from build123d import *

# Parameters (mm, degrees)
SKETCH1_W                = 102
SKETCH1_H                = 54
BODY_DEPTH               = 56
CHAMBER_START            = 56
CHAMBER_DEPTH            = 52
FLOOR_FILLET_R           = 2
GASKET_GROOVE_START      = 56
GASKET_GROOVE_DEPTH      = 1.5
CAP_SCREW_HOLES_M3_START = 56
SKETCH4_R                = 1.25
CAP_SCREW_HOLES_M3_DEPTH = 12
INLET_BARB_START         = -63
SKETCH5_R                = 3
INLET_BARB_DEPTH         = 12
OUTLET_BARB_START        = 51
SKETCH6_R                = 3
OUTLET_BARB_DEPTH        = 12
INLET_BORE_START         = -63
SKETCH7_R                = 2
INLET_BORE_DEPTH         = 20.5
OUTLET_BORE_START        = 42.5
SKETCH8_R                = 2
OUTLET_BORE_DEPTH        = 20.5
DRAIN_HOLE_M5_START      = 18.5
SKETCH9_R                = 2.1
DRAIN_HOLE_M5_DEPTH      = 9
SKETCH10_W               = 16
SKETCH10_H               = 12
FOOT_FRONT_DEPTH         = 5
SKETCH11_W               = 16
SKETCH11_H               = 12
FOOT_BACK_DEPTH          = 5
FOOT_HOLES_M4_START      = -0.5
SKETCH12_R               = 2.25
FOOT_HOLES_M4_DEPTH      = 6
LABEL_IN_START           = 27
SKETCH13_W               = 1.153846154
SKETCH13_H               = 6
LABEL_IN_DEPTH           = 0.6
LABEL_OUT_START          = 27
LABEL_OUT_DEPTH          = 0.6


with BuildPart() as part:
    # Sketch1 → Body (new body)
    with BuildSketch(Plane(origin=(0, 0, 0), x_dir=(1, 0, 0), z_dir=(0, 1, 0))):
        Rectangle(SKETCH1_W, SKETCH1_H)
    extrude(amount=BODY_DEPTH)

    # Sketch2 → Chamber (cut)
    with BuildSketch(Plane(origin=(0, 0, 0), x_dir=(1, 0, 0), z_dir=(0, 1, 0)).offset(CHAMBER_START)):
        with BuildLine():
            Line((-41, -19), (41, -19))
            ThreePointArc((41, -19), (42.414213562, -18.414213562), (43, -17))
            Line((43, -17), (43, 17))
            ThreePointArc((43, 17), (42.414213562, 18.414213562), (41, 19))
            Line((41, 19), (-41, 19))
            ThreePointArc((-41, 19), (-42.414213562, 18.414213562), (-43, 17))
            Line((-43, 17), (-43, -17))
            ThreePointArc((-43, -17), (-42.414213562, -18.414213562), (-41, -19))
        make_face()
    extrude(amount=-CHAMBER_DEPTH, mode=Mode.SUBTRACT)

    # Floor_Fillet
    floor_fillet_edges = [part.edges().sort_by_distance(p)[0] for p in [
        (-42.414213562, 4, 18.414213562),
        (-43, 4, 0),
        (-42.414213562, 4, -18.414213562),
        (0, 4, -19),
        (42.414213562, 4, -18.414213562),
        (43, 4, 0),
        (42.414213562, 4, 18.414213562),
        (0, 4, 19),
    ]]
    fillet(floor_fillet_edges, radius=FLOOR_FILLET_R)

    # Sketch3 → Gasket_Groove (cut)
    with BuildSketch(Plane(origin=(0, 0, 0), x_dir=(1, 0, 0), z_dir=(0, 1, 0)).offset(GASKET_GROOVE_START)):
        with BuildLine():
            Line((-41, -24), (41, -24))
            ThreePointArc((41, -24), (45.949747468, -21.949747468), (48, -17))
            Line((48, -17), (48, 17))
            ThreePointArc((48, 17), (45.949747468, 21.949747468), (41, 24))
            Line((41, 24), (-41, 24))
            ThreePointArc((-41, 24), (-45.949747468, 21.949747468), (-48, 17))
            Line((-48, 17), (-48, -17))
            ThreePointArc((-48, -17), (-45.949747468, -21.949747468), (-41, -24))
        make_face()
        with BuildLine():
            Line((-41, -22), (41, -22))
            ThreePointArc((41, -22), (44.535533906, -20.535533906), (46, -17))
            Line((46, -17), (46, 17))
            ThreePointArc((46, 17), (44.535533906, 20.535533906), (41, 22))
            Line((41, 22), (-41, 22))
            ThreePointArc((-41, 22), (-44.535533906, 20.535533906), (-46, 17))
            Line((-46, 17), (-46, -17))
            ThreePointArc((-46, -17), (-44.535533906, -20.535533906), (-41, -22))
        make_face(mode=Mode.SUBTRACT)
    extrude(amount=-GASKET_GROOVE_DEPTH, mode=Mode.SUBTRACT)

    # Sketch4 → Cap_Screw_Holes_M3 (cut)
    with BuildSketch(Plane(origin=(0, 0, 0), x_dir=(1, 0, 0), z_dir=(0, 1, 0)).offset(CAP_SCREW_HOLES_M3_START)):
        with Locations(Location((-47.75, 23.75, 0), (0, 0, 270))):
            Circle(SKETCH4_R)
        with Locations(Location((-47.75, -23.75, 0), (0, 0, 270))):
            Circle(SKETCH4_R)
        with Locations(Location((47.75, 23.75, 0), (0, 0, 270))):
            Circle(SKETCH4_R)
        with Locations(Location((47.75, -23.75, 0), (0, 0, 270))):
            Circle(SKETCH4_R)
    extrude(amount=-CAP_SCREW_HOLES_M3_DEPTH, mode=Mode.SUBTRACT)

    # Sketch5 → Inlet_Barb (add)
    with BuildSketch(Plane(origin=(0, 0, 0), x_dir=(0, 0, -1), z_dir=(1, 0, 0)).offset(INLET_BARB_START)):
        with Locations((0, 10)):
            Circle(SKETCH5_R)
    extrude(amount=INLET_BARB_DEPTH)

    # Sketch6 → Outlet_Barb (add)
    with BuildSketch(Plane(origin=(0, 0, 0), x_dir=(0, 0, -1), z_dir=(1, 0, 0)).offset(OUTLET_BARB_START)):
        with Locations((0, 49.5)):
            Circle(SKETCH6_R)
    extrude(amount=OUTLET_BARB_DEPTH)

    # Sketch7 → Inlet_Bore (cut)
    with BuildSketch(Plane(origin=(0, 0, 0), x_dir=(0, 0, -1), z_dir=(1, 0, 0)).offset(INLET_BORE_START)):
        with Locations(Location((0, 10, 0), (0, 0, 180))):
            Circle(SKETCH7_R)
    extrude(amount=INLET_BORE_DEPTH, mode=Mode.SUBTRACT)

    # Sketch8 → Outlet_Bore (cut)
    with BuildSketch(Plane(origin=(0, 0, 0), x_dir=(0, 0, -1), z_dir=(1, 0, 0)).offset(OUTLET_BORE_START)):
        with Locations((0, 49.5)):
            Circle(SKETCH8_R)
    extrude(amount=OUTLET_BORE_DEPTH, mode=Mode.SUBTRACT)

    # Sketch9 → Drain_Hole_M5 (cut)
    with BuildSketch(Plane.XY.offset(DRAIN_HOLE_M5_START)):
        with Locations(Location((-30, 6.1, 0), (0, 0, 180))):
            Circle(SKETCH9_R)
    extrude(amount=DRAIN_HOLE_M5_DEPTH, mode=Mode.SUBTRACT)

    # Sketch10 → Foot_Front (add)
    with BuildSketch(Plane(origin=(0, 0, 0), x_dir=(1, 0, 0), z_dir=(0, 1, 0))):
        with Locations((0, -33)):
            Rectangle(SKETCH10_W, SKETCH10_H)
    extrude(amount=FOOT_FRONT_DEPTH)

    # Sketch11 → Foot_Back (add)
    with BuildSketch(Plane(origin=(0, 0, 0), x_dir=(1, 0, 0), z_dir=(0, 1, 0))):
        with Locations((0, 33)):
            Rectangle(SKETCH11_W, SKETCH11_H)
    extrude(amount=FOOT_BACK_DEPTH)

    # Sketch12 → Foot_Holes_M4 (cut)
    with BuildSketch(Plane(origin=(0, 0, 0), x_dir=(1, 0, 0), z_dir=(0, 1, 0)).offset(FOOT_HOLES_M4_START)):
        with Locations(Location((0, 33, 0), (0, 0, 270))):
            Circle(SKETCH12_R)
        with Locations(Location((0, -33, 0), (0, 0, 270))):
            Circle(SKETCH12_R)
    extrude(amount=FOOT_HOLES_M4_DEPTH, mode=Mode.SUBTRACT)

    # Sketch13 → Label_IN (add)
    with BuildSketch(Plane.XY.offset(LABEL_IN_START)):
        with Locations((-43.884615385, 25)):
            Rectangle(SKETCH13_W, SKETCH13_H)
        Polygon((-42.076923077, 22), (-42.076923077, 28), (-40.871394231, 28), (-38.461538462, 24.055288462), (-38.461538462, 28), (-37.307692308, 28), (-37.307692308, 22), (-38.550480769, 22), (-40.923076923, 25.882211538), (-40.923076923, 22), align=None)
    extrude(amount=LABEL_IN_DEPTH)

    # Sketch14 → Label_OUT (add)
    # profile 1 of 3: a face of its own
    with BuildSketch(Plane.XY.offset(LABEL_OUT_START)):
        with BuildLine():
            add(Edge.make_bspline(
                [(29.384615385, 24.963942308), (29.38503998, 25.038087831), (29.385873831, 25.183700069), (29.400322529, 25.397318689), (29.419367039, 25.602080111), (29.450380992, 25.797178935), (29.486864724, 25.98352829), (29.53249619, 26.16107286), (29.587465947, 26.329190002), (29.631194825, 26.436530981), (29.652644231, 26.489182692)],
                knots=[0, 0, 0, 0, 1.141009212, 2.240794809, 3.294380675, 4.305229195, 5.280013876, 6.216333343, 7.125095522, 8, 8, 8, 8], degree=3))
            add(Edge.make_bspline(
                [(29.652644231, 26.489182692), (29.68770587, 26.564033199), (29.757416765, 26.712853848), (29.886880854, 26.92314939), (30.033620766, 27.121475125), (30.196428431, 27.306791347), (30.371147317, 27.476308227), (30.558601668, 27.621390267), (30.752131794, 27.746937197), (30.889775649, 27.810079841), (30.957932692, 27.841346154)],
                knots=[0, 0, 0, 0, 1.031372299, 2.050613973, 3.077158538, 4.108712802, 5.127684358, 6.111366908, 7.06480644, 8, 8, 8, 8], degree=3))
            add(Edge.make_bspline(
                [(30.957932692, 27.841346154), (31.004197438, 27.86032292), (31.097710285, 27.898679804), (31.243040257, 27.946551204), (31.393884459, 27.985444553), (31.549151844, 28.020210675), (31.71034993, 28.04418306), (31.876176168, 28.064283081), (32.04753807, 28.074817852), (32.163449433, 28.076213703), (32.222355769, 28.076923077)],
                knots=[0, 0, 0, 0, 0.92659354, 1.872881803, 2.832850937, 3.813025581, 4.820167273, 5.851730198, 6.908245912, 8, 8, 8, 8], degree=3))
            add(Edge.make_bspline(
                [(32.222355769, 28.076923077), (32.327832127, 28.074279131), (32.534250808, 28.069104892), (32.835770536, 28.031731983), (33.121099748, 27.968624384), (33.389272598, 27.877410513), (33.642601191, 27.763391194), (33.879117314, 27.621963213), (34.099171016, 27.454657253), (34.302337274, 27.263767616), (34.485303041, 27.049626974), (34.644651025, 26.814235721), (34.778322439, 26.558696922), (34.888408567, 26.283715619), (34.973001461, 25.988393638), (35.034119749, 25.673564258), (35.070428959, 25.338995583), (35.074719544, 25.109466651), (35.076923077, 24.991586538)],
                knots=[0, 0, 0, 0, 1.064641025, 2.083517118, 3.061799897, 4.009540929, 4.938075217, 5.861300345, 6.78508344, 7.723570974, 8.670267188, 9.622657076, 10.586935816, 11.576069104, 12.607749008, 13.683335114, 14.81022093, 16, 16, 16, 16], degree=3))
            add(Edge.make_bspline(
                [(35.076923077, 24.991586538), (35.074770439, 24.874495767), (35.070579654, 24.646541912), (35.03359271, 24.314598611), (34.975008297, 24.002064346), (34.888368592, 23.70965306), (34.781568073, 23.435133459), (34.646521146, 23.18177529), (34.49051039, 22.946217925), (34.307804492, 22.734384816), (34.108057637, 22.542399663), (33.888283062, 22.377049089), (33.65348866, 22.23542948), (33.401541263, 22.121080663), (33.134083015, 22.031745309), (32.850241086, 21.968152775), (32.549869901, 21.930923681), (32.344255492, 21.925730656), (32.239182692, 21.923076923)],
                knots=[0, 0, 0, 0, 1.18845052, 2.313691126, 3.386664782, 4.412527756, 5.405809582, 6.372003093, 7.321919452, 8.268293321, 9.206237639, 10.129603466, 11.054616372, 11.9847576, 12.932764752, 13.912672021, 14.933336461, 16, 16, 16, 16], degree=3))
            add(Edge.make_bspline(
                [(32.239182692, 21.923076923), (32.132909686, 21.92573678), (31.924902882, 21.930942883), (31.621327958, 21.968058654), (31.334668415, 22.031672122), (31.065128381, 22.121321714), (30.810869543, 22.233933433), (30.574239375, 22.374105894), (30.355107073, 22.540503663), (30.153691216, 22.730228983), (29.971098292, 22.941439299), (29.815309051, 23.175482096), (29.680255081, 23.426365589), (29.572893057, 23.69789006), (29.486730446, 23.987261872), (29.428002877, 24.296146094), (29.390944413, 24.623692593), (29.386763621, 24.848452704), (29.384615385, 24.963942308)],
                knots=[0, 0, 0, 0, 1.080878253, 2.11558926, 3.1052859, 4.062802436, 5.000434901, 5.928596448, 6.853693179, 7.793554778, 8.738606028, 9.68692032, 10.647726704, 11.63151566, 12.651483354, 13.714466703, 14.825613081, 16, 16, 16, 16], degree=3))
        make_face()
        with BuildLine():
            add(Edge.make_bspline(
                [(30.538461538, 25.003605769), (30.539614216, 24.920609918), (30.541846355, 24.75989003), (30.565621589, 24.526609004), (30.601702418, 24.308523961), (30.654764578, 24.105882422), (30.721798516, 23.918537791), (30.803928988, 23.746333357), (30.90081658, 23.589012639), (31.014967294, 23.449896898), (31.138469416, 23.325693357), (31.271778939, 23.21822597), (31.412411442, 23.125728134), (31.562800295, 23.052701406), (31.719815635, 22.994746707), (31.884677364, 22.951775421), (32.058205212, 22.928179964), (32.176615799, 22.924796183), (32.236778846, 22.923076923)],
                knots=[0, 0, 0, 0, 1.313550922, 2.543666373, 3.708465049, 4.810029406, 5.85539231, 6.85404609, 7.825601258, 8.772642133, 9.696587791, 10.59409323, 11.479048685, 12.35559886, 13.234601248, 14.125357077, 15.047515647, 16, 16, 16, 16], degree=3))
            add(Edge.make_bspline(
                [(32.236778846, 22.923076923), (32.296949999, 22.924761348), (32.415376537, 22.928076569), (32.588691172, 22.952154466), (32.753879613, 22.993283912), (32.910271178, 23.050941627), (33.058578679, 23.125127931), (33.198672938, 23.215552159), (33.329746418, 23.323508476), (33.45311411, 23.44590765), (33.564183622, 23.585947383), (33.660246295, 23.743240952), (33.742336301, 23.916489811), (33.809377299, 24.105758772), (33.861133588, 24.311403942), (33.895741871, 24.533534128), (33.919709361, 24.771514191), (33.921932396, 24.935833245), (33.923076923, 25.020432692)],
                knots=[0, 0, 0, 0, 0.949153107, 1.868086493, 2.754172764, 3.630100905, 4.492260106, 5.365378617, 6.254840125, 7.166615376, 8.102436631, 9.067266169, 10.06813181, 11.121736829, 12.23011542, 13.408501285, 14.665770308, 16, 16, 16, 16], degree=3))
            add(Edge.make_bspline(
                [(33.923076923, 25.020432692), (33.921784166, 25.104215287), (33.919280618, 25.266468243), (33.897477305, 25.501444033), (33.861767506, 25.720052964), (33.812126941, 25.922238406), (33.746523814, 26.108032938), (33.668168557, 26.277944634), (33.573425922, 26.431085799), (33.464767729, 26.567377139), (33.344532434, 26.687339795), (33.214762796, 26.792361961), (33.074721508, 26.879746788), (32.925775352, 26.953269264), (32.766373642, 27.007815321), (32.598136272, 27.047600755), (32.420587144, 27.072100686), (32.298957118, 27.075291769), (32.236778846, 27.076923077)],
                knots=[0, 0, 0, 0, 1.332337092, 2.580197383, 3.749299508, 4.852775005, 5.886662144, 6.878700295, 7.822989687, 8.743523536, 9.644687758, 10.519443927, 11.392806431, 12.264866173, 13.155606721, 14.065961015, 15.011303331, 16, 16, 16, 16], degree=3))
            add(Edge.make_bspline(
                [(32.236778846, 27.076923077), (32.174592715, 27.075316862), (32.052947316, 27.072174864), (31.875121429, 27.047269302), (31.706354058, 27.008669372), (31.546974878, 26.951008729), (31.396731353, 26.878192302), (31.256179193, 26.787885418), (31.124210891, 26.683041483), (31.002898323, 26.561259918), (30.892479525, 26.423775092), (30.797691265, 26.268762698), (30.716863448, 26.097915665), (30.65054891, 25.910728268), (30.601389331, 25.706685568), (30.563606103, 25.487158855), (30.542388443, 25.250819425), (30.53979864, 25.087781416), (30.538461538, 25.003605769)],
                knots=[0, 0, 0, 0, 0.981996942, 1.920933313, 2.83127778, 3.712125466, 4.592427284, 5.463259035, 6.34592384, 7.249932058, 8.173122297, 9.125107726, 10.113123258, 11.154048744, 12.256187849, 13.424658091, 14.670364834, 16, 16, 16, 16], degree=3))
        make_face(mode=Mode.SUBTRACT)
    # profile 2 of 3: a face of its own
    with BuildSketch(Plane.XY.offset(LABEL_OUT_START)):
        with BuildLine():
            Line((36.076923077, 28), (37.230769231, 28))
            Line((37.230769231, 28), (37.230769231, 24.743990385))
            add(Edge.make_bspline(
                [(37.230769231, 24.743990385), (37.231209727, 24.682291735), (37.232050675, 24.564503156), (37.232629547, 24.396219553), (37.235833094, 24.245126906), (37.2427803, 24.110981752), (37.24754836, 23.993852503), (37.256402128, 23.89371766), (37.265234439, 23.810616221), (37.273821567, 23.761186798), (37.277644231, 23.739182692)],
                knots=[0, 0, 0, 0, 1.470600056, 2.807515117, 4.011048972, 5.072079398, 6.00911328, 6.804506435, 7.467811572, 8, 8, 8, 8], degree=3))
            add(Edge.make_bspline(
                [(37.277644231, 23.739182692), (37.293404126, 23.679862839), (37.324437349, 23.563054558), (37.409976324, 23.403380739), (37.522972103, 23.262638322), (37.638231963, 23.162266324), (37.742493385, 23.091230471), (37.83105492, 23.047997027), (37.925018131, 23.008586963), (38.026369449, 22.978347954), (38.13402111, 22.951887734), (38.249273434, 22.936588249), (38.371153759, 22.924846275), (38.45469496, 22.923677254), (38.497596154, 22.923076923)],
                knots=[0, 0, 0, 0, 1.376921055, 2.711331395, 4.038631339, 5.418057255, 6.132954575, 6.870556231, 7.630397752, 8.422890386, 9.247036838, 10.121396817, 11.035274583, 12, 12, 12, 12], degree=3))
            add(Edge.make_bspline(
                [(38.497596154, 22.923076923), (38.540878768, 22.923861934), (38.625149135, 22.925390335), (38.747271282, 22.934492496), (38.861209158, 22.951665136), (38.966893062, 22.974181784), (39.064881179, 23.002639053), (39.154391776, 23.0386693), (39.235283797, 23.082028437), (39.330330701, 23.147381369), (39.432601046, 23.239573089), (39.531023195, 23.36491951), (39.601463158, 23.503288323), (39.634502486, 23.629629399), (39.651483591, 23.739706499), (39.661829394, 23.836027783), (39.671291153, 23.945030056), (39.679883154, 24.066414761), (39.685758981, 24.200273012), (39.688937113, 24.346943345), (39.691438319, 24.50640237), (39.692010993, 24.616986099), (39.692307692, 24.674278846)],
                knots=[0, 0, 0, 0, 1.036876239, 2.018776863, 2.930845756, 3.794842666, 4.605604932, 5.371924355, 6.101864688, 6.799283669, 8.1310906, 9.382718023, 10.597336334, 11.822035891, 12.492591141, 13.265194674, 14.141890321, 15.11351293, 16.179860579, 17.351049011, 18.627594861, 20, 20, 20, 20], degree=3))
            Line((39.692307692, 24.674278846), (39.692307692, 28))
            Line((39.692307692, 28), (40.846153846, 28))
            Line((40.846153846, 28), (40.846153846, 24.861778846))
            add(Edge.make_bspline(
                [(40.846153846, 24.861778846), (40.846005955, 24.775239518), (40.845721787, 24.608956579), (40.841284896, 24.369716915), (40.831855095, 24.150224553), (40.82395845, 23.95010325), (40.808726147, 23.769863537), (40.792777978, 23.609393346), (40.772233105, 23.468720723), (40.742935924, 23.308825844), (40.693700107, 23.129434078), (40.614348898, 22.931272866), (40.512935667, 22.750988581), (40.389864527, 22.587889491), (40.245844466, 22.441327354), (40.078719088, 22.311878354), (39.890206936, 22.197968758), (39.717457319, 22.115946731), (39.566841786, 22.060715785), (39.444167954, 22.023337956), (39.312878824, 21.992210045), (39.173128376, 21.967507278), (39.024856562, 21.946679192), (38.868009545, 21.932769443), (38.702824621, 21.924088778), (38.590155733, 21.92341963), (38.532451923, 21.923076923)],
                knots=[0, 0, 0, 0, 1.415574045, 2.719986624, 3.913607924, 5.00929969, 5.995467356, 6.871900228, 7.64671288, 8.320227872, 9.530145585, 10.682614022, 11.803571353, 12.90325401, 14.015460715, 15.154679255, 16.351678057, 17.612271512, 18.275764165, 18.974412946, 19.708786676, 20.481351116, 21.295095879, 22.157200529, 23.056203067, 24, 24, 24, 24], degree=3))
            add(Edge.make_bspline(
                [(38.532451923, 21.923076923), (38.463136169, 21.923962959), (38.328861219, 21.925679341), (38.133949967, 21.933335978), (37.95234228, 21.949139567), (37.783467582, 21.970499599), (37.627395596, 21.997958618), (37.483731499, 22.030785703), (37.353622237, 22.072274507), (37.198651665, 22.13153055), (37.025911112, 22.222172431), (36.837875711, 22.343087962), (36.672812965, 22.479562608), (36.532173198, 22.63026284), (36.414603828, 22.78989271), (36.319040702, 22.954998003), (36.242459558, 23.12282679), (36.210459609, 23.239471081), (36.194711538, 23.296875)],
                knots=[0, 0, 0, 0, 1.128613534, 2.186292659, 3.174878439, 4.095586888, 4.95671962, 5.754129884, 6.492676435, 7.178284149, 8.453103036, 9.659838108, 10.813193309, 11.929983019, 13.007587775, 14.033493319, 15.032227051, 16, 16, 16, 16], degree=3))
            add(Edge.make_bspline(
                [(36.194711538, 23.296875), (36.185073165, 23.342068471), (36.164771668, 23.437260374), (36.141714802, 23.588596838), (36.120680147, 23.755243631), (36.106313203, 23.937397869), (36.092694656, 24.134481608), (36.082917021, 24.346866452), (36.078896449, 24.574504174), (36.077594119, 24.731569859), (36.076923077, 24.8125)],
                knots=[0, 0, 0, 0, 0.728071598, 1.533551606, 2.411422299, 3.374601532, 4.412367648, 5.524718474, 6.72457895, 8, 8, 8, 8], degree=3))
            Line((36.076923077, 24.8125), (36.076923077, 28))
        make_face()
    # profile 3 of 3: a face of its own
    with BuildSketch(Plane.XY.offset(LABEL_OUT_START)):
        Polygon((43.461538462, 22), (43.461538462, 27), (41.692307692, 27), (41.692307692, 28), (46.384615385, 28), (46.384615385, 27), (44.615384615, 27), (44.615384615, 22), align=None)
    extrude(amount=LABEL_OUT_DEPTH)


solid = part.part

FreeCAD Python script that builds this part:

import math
import FreeCAD as App
import Part
import Sketcher


def edges_at(feature, points):
    """Names of the edges that pass closest to the given points."""
    edges = feature.Shape.Edges
    near = lambda p: min(range(len(edges)), key=lambda i: edges[i].distToShape(Part.Vertex(*p))[0])
    return sorted({f"Edge{near(p) + 1}" for p in points})


def add_polygon(sketch, points):
    """Adds a closed chain of lines whose ends are joined by coincident constraints."""
    first, n = sketch.GeometryCount, len(points)
    for a, b in zip(points, points[1:] + points[:1]):
        sketch.addGeometry(Part.LineSegment(App.Vector(*a, 0), App.Vector(*b, 0)), False)
    for i in range(n):
        sketch.addConstraint(Sketcher.Constraint("Coincident", first + i, 2, first + (i + 1) % n, 1))

doc = App.newDocument("Part")
body = doc.addObject("PartDesign::Body", "Body")

sketch1 = body.newObject("Sketcher::SketchObject", "Sketch")
sketch1.AttachmentSupport = (doc.getObject("XZ_Plane"), [""])
sketch1.MapMode = "FlatFace"
add_polygon(sketch1, [(-51, -27), (-51, 27), (51, 27), (51, -27)])
sketch1.addConstraint([
    Sketcher.Constraint("Vertical", 0),
    Sketcher.Constraint("Horizontal", 1),
    Sketcher.Constraint("Vertical", 2),
    Sketcher.Constraint("Horizontal", 3),
    Sketcher.Constraint("Symmetric", 0, 2, 2, 2, -1, 1),
    Sketcher.Constraint("DistanceX", 1, 1, 1, 2, 102.0),
    Sketcher.Constraint("DistanceY", 0, 1, 0, 2, 54.0),
])
pad1 = body.newObject("PartDesign::Pad", "Pad")
pad1.Profile = sketch1
pad1.Length = 56
pad1.Reversed = True

sketch2 = body.newObject("Sketcher::SketchObject", "Sketch001")
sketch2.AttachmentSupport = (doc.getObject("XZ_Plane"), [""])
sketch2.MapMode = "FlatFace"
sketch2.AttachmentOffset = App.Placement(App.Vector(0, 0, -56), App.Rotation())
sketch2.addGeometry([
    Part.LineSegment(App.Vector(-41, 19, 0), App.Vector(41, 19, 0)),
    Part.ArcOfCircle(Part.Circle(App.Vector(41, 17, 0), App.Vector(0, 0, 1), 2), math.radians(0), math.radians(90)),
    Part.LineSegment(App.Vector(43, 17, 0), App.Vector(43, -17, 0)),
    Part.ArcOfCircle(Part.Circle(App.Vector(41, -17, 0), App.Vector(0, 0, 1), 2), math.radians(-90), math.radians(0)),
    Part.LineSegment(App.Vector(41, -19, 0), App.Vector(-41, -19, 0)),
    Part.ArcOfCircle(Part.Circle(App.Vector(-41, -17, 0), App.Vector(0, 0, 1), 2), math.radians(-180), math.radians(-90)),
    Part.LineSegment(App.Vector(-43, -17, 0), App.Vector(-43, 17, 0)),
    Part.ArcOfCircle(Part.Circle(App.Vector(-41, 17, 0), App.Vector(0, 0, 1), 2), math.radians(90), math.radians(180)),
], False)
sketch2.addConstraint([
    Sketcher.Constraint("Tangent", 0, 2, 1, 2),
    Sketcher.Constraint("Tangent", 1, 1, 2, 1),
    Sketcher.Constraint("Tangent", 2, 2, 3, 2),
    Sketcher.Constraint("Tangent", 3, 1, 4, 1),
    Sketcher.Constraint("Tangent", 4, 2, 5, 2),
    Sketcher.Constraint("Tangent", 5, 1, 6, 1),
    Sketcher.Constraint("Tangent", 6, 2, 7, 2),
    Sketcher.Constraint("Tangent", 7, 1, 0, 1),
    Sketcher.Constraint("Horizontal", 0),
    Sketcher.Constraint("Vertical", 2),
    Sketcher.Constraint("Horizontal", 4),
    Sketcher.Constraint("Vertical", 6),
    Sketcher.Constraint("Equal", 1, 3),
    Sketcher.Constraint("Equal", 3, 5),
    Sketcher.Constraint("Equal", 5, 7),
    Sketcher.Constraint("Symmetric", 1, 3, 5, 3, -1, 1),
    Sketcher.Constraint("Radius", 1, 2.0),
    Sketcher.Constraint("DistanceX", 0, 1, 0, 2, 82.0),
    Sketcher.Constraint("DistanceY", 2, 2, 2, 1, 34.0),
])
pocket1 = body.newObject("PartDesign::Pocket", "Pocket")
pocket1.Profile = sketch2
pocket1.Length = 52
pocket1.Reversed = True
doc.recompute()

fillet = body.newObject("PartDesign::Fillet", "Fillet")
fillet.Base = (pocket1, edges_at(pocket1, [
    (-42.414, 4, 18.414),
    (-43, 4, 0),
    (-42.414, 4, -18.414),
    (0, 4, -19),
    (42.414, 4, -18.414),
    (43, 4, 0),
    (42.414, 4, 18.414),
    (0, 4, 19),
]))
fillet.Radius = 2

sketch3 = body.newObject("Sketcher::SketchObject", "Sketch002")
sketch3.AttachmentSupport = (doc.getObject("XZ_Plane"), [""])
sketch3.MapMode = "FlatFace"
sketch3.AttachmentOffset = App.Placement(App.Vector(0, 0, -56), App.Rotation())
sketch3.addGeometry([
    Part.LineSegment(App.Vector(-41, 24, 0), App.Vector(41, 24, 0)),
    Part.ArcOfCircle(Part.Circle(App.Vector(41, 17, 0), App.Vector(0, 0, 1), 7), math.radians(0), math.radians(90)),
    Part.LineSegment(App.Vector(48, 17, 0), App.Vector(48, -17, 0)),
    Part.ArcOfCircle(Part.Circle(App.Vector(41, -17, 0), App.Vector(0, 0, 1), 7), math.radians(-90), math.radians(0)),
    Part.LineSegment(App.Vector(41, -24, 0), App.Vector(-41, -24, 0)),
    Part.ArcOfCircle(Part.Circle(App.Vector(-41, -17, 0), App.Vector(0, 0, 1), 7), math.radians(-180), math.radians(-90)),
    Part.LineSegment(App.Vector(-48, -17, 0), App.Vector(-48, 17, 0)),
    Part.ArcOfCircle(Part.Circle(App.Vector(-41, 17, 0), App.Vector(0, 0, 1), 7), math.radians(90), math.radians(180)),
    Part.LineSegment(App.Vector(41, 22, 0), App.Vector(-41, 22, 0)),
    Part.ArcOfCircle(Part.Circle(App.Vector(-41, 17, 0), App.Vector(0, 0, 1), 5), math.radians(90), math.radians(180)),
    Part.LineSegment(App.Vector(-46, 17, 0), App.Vector(-46, -17, 0)),
    Part.ArcOfCircle(Part.Circle(App.Vector(-41, -17, 0), App.Vector(0, 0, 1), 5), math.radians(180), math.radians(270)),
    Part.LineSegment(App.Vector(-41, -22, 0), App.Vector(41, -22, 0)),
    Part.ArcOfCircle(Part.Circle(App.Vector(41, -17, 0), App.Vector(0, 0, 1), 5), math.radians(-90), math.radians(0)),
    Part.LineSegment(App.Vector(46, -17, 0), App.Vector(46, 17, 0)),
    Part.ArcOfCircle(Part.Circle(App.Vector(41, 17, 0), App.Vector(0, 0, 1), 5), math.radians(0), math.radians(90)),
], False)
sketch3.addConstraint([
    Sketcher.Constraint("Tangent", 0, 2, 1, 2),
    Sketcher.Constraint("Tangent", 1, 1, 2, 1),
    Sketcher.Constraint("Tangent", 2, 2, 3, 2),
    Sketcher.Constraint("Tangent", 3, 1, 4, 1),
    Sketcher.Constraint("Tangent", 4, 2, 5, 2),
    Sketcher.Constraint("Tangent", 5, 1, 6, 1),
    Sketcher.Constraint("Tangent", 6, 2, 7, 2),
    Sketcher.Constraint("Tangent", 7, 1, 0, 1),
    Sketcher.Constraint("Tangent", 8, 2, 9, 1),
    Sketcher.Constraint("Tangent", 9, 2, 10, 1),
    Sketcher.Constraint("Tangent", 10, 2, 11, 1),
    Sketcher.Constraint("Tangent", 11, 2, 12, 1),
    Sketcher.Constraint("Tangent", 12, 2, 13, 1),
    Sketcher.Constraint("Tangent", 13, 2, 14, 1),
    Sketcher.Constraint("Tangent", 14, 2, 15, 1),
    Sketcher.Constraint("Tangent", 15, 2, 8, 1),
    Sketcher.Constraint("Horizontal", 0),
    Sketcher.Constraint("Vertical", 2),
    Sketcher.Constraint("Horizontal", 4),
    Sketcher.Constraint("Vertical", 6),
    Sketcher.Constraint("Horizontal", 8),
    Sketcher.Constraint("Vertical", 10),
    Sketcher.Constraint("Horizontal", 12),
    Sketcher.Constraint("Vertical", 14),
    Sketcher.Constraint("Coincident", 9, 3, 7, 3),
    Sketcher.Constraint("Coincident", 11, 3, 5, 3),
    Sketcher.Constraint("Coincident", 13, 3, 3, 3),
    Sketcher.Constraint("Equal", 1, 3),
    Sketcher.Constraint("Equal", 3, 5),
    Sketcher.Constraint("Equal", 5, 7),
    Sketcher.Constraint("Equal", 13, 15),
    Sketcher.Constraint("Symmetric", 1, 3, 5, 3, -1, 1),
    Sketcher.Constraint("Radius", 1, 7.0),
    Sketcher.Constraint("Radius", 9, 5.0),
    Sketcher.Constraint("DistanceX", 0, 1, 0, 2, 82.0),
    Sketcher.Constraint("DistanceY", 2, 2, 2, 1, 34.0),
])
pocket2 = body.newObject("PartDesign::Pocket", "Pocket001")
pocket2.Profile = sketch3
pocket2.Length = 1.5
pocket2.Reversed = True

sketch4 = body.newObject("Sketcher::SketchObject", "Sketch003")
sketch4.AttachmentSupport = (doc.getObject("XZ_Plane"), [""])
sketch4.MapMode = "FlatFace"
sketch4.AttachmentOffset = App.Placement(App.Vector(0, 0, -56), App.Rotation())
sketch4.addGeometry([
    Part.Circle(App.Vector(-47.75, -23.75, 0), App.Vector(0, 0, 1), 1.25),
    Part.Circle(App.Vector(-47.75, 23.75, 0), App.Vector(0, 0, 1), 1.25),
    Part.Circle(App.Vector(47.75, -23.75, 0), App.Vector(0, 0, 1), 1.25),
    Part.Circle(App.Vector(47.75, 23.75, 0), App.Vector(0, 0, 1), 1.25),
], False)
sketch4.addConstraint([
    Sketcher.Constraint("Equal", 0, 1),
    Sketcher.Constraint("Equal", 1, 2),
    Sketcher.Constraint("Equal", 2, 3),
    Sketcher.Constraint("Symmetric", 1, 3, 2, 3, -1, 1),
    Sketcher.Constraint("Symmetric", 0, 3, 3, 3, -1, 1),
    Sketcher.Constraint("Symmetric", 0, 3, 2, 3, -2),
    Sketcher.Constraint("Diameter", 0, 2.5),
    Sketcher.Constraint("DistanceY", 0, 3, 1, 3, 47.5),
    Sketcher.Constraint("DistanceX", 0, 3, 2, 3, 95.5),
])
pocket3 = body.newObject("PartDesign::Pocket", "Pocket002")
pocket3.Profile = sketch4
pocket3.Length = 12
pocket3.Reversed = True

sketch5 = body.newObject("Sketcher::SketchObject", "Sketch004")
sketch5.AttachmentSupport = (doc.getObject("YZ_Plane"), [""])
sketch5.MapMode = "FlatFace"
sketch5.AttachmentOffset = App.Placement(App.Vector(0, 0, -63), App.Rotation())
sketch5.addGeometry(Part.Circle(App.Vector(10, 0, 0), App.Vector(0, 0, 1), 3), False)
sketch5.addConstraint([
    Sketcher.Constraint("PointOnObject", 0, 3, -1),
    Sketcher.Constraint("Diameter", 0, 6.0),
    Sketcher.Constraint("DistanceX", -1, 1, 0, 3, 10.0),
])
pad2 = body.newObject("PartDesign::Pad", "Pad001")
pad2.Profile = sketch5
pad2.Length = 12

sketch6 = body.newObject("Sketcher::SketchObject", "Sketch005")
sketch6.AttachmentSupport = (doc.getObject("YZ_Plane"), [""])
sketch6.MapMode = "FlatFace"
sketch6.AttachmentOffset = App.Placement(App.Vector(0, 0, 51), App.Rotation())
sketch6.addGeometry(Part.Circle(App.Vector(49.5, 0, 0), App.Vector(0, 0, 1), 3), False)
sketch6.addConstraint([
    Sketcher.Constraint("PointOnObject", 0, 3, -1),
    Sketcher.Constraint("Diameter", 0, 6.0),
    Sketcher.Constraint("DistanceX", -1, 1, 0, 3, 49.5),
])
pad3 = body.newObject("PartDesign::Pad", "Pad002")
pad3.Profile = sketch6
pad3.Length = 12

sketch7 = body.newObject("Sketcher::SketchObject", "Sketch006")
sketch7.AttachmentSupport = (doc.getObject("YZ_Plane"), [""])
sketch7.MapMode = "FlatFace"
sketch7.AttachmentOffset = App.Placement(App.Vector(0, 0, -63), App.Rotation())
sketch7.addGeometry(Part.Circle(App.Vector(10, 0, 0), App.Vector(0, 0, 1), 2), False)
sketch7.addConstraint([
    Sketcher.Constraint("PointOnObject", 0, 3, -1),
    Sketcher.Constraint("Diameter", 0, 4.0),
    Sketcher.Constraint("DistanceX", -1, 1, 0, 3, 10.0),
])
pocket4 = body.newObject("PartDesign::Pocket", "Pocket003")
pocket4.Profile = sketch7
pocket4.Length = 20.5
pocket4.Reversed = True

sketch8 = body.newObject("Sketcher::SketchObject", "Sketch007")
sketch8.AttachmentSupport = (doc.getObject("YZ_Plane"), [""])
sketch8.MapMode = "FlatFace"
sketch8.AttachmentOffset = App.Placement(App.Vector(0, 0, 42.5), App.Rotation())
sketch8.addGeometry(Part.Circle(App.Vector(49.5, 0, 0), App.Vector(0, 0, 1), 2), False)
sketch8.addConstraint([
    Sketcher.Constraint("PointOnObject", 0, 3, -1),
    Sketcher.Constraint("Diameter", 0, 4.0),
    Sketcher.Constraint("DistanceX", -1, 1, 0, 3, 49.5),
])
pocket5 = body.newObject("PartDesign::Pocket", "Pocket004")
pocket5.Profile = sketch8
pocket5.Length = 20.5
pocket5.Reversed = True

sketch9 = body.newObject("Sketcher::SketchObject", "Sketch008")
sketch9.AttachmentSupport = (doc.getObject("XY_Plane"), [""])
sketch9.MapMode = "FlatFace"
sketch9.AttachmentOffset = App.Placement(App.Vector(0, 0, 18.5), App.Rotation())
sketch9.addGeometry(Part.Circle(App.Vector(-30, 6.1, 0), App.Vector(0, 0, 1), 2.1), False)
sketch9.addConstraint([
    Sketcher.Constraint("Diameter", 0, 4.2),
    Sketcher.Constraint("DistanceX", 0, 3, -1, 1, 30.0),
    Sketcher.Constraint("DistanceY", -1, 1, 0, 3, 6.1),
])
pocket6 = body.newObject("PartDesign::Pocket", "Pocket005")
pocket6.Profile = sketch9
pocket6.Length = 9
pocket6.Reversed = True

sketch10 = body.newObject("Sketcher::SketchObject", "Sketch009")
sketch10.AttachmentSupport = (doc.getObject("XZ_Plane"), [""])
sketch10.MapMode = "FlatFace"
add_polygon(sketch10, [(-8, 27), (-8, 39), (8, 39), (8, 27)])
sketch10.addConstraint([
    Sketcher.Constraint("Vertical", 0),
    Sketcher.Constraint("Horizontal", 1),
    Sketcher.Constraint("Vertical", 2),
    Sketcher.Constraint("Horizontal", 3),
    Sketcher.Constraint("DistanceX", 1, 1, 1, 2, 16.0),
    Sketcher.Constraint("DistanceY", 0, 1, 0, 2, 12.0),
    Sketcher.Constraint("DistanceX", 0, 2, -1, 1, 8.0),
    Sketcher.Constraint("DistanceY", -1, 1, 0, 2, 39.0),
])
pad4 = body.newObject("PartDesign::Pad", "Pad003")
pad4.Profile = sketch10
pad4.Length = 5
pad4.Reversed = True

sketch11 = body.newObject("Sketcher::SketchObject", "Sketch010")
sketch11.AttachmentSupport = (doc.getObject("XZ_Plane"), [""])
sketch11.MapMode = "FlatFace"
add_polygon(sketch11, [(-8, -39), (-8, -27), (8, -27), (8, -39)])
sketch11.addConstraint([
    Sketcher.Constraint("Vertical", 0),
    Sketcher.Constraint("Horizontal", 1),
    Sketcher.Constraint("Vertical", 2),
    Sketcher.Constraint("Horizontal", 3),
    Sketcher.Constraint("DistanceX", 1, 1, 1, 2, 16.0),
    Sketcher.Constraint("DistanceY", 0, 1, 0, 2, 12.0),
    Sketcher.Constraint("DistanceX", 0, 2, -1, 1, 8.0),
    Sketcher.Constraint("DistanceY", 0, 2, -1, 1, 27.0),
])
pad5 = body.newObject("PartDesign::Pad", "Pad004")
pad5.Profile = sketch11
pad5.Length = 5
pad5.Reversed = True

sketch12 = body.newObject("Sketcher::SketchObject", "Sketch011")
sketch12.AttachmentSupport = (doc.getObject("XZ_Plane"), [""])
sketch12.MapMode = "FlatFace"
sketch12.AttachmentOffset = App.Placement(App.Vector(0, 0, 0.5), App.Rotation())
sketch12.addGeometry([
    Part.Circle(App.Vector(0, -33, 0), App.Vector(0, 0, 1), 2.25),
    Part.Circle(App.Vector(0, 33, 0), App.Vector(0, 0, 1), 2.25),
], False)
sketch12.addConstraint([
    Sketcher.Constraint("Equal", 0, 1),
    Sketcher.Constraint("Symmetric", 0, 3, 1, 3, -1, 1),
    Sketcher.Constraint("PointOnObject", 0, 3, -2),
    Sketcher.Constraint("Diameter", 0, 4.5),
    Sketcher.Constraint("DistanceY", 0, 3, -1, 1, 33.0),
])
pocket7 = body.newObject("PartDesign::Pocket", "Pocket006")
pocket7.Profile = sketch12
pocket7.Length = 6

sketch13 = body.newObject("Sketcher::SketchObject", "Sketch012")
sketch13.AttachmentSupport = (doc.getObject("XY_Plane"), [""])
sketch13.MapMode = "FlatFace"
sketch13.AttachmentOffset = App.Placement(App.Vector(0, 0, 27), App.Rotation())
add_polygon(sketch13, [(-44.461538, 28), (-44.461538, 22), (-43.307692, 22), (-43.307692, 28)])
add_polygon(sketch13, [(-42.076923, 28), (-42.076923, 22), (-40.923077, 22), (-40.923077, 25.882212), (-38.550481, 22), (-37.307692, 22), (-37.307692, 28), (-38.461538, 28), (-38.461538, 24.055288), (-40.871394, 28)])
sketch13.addConstraint([
    Sketcher.Constraint("Vertical", 0),
    Sketcher.Constraint("Horizontal", 1),
    Sketcher.Constraint("Vertical", 2),
    Sketcher.Constraint("Horizontal", 3),
    Sketcher.Constraint("Vertical", 4),
    Sketcher.Constraint("Horizontal", 5),
    Sketcher.Constraint("Vertical", 6),
    Sketcher.Constraint("Horizontal", 8),
    Sketcher.Constraint("Vertical", 9),
    Sketcher.Constraint("Horizontal", 10),
    Sketcher.Constraint("Vertical", 11),
    Sketcher.Constraint("Horizontal", 13),
    Sketcher.Constraint("Horizontal", 1, 2, 4, 2),
    Sketcher.Constraint("Horizontal", 5, 2, 7, 2),
    Sketcher.Constraint("Horizontal", 3, 2, 9, 2),
    Sketcher.Constraint("Horizontal", 10, 2, 12, 2),
    Sketcher.Constraint("Equal", 3, 5),
    Sketcher.Constraint("Equal", 5, 10),
    Sketcher.Constraint("DistanceY", 0, 2, 0, 1, 6.0),
    Sketcher.Constraint("DistanceY", -1, 1, 0, 2, 22.0),
    Sketcher.Constraint("DistanceX", 1, 2, 8, 2, 6.0),
    Sketcher.Constraint("DistanceX", 8, 1, 8, 2, 1.242788),
    Sketcher.Constraint("DistanceX", 13, 2, 13, 1, 1.205529),
    Sketcher.Constraint("DistanceY", 6, 1, 6, 2, 3.882212),
    Sketcher.Constraint("DistanceY", 11, 2, 11, 1, 3.944712),
    Sketcher.Constraint("DistanceX", 2, 2, 12, 2, 2.436298),
    Sketcher.Constraint("Distance", 7, 4.549811),
    Sketcher.Constraint("DistanceX", 0, 2, -1, 1, 44.461538),
])
pad6 = body.newObject("PartDesign::Pad", "Pad005")
pad6.Profile = sketch13
pad6.Length = 0.6

sketch14 = body.newObject("Sketcher::SketchObject", "Sketch013")
sketch14.AttachmentSupport = (doc.getObject("XY_Plane"), [""])
sketch14.MapMode = "FlatFace"
sketch14.AttachmentOffset = App.Placement(App.Vector(0, 0, 27), App.Rotation())
sketch14.addGeometry(Part.BSplineCurve([App.Vector(29.384615, 24.963942, 0), App.Vector(29.38504, 25.038088, 0), App.Vector(29.385874, 25.1837, 0), App.Vector(29.400323, 25.397319, 0), App.Vector(29.419367, 25.60208, 0), App.Vector(29.450381, 25.797179, 0), App.Vector(29.486865, 25.983528, 0), App.Vector(29.532496, 26.161073, 0), App.Vector(29.587466, 26.32919, 0), App.Vector(29.631195, 26.436531, 0), App.Vector(29.652644, 26.489183, 0)], [4, 1, 1, 1, 1, 1, 1, 1, 4], [0, 1.141009212, 2.240794809, 3.294380675, 4.305229195, 5.280013876, 6.216333343, 7.125095522, 8], False, 3, [1, 1, 1, 1, 1, 1, 1, 1, 1, 1, 1], False), False)
sketch14.addGeometry(Part.BSplineCurve([App.Vector(32.239183, 21.923077, 0), App.Vector(32.13291, 21.925737, 0), App.Vector(31.924903, 21.930943, 0), App.Vector(31.621328, 21.968059, 0), App.Vector(31.334668, 22.031672, 0), App.Vector(31.065128, 22.121322, 0), App.Vector(30.81087, 22.233933, 0), App.Vector(30.574239, 22.374106, 0), App.Vector(30.355107, 22.540504, 0), App.Vector(30.153691, 22.730229, 0), App.Vector(29.971098, 22.941439, 0), App.Vector(29.815309, 23.175482, 0), App.Vector(29.680255, 23.426366, 0), App.Vector(29.572893, 23.69789, 0), App.Vector(29.48673, 23.987262, 0), App.Vector(29.428003, 24.296146, 0), App.Vector(29.390944, 24.623693, 0), App.Vector(29.386764, 24.848453, 0), App.Vector(29.384615, 24.963942, 0)], [4, 1, 1, 1, 1, 1, 1, 1, 1, 1, 1, 1, 1, 1, 1, 1, 4], [0, 1.080878253, 2.11558926, 3.1052859, 4.062802436, 5.000434901, 5.928596448, 6.853693179, 7.793554778, 8.738606028, 9.68692032, 10.647726704, 11.63151566, 12.651483354, 13.714466703, 14.825613081, 16], False, 3, [1, 1, 1, 1, 1, 1, 1, 1, 1, 1, 1, 1, 1, 1, 1, 1, 1, 1, 1], False), False)
sketch14.addGeometry(Part.BSplineCurve([App.Vector(35.076923, 24.991587, 0), App.Vector(35.07477, 24.874496, 0), App.Vector(35.07058, 24.646542, 0), App.Vector(35.033593, 24.314599, 0), App.Vector(34.975008, 24.002064, 0), App.Vector(34.888369, 23.709653, 0), App.Vector(34.781568, 23.435133, 0), App.Vector(34.646521, 23.181775, 0), App.Vector(34.49051, 22.946218, 0), App.Vector(34.307804, 22.734385, 0), App.Vector(34.108058, 22.5424, 0), App.Vector(33.888283, 22.377049, 0), App.Vector(33.653489, 22.235429, 0), App.Vector(33.401541, 22.121081, 0), App.Vector(33.134083, 22.031745, 0), App.Vector(32.850241, 21.968153, 0), App.Vector(32.54987, 21.930924, 0), App.Vector(32.344255, 21.925731, 0), App.Vector(32.239183, 21.923077, 0)], [4, 1, 1, 1, 1, 1, 1, 1, 1, 1, 1, 1, 1, 1, 1, 1, 4], [0, 1.18845052, 2.313691126, 3.386664782, 4.412527756, 5.405809582, 6.372003093, 7.321919452, 8.268293321, 9.206237639, 10.129603466, 11.054616372, 11.9847576, 12.932764752, 13.912672021, 14.933336461, 16], False, 3, [1, 1, 1, 1, 1, 1, 1, 1, 1, 1, 1, 1, 1, 1, 1, 1, 1, 1, 1], False), False)
sketch14.addGeometry(Part.BSplineCurve([App.Vector(32.222356, 28.076923, 0), App.Vector(32.327832, 28.074279, 0), App.Vector(32.534251, 28.069105, 0), App.Vector(32.835771, 28.031732, 0), App.Vector(33.1211, 27.968624, 0), App.Vector(33.389273, 27.877411, 0), App.Vector(33.642601, 27.763391, 0), App.Vector(33.879117, 27.621963, 0), App.Vector(34.099171, 27.454657, 0), App.Vector(34.302337, 27.263768, 0), App.Vector(34.485303, 27.049627, 0), App.Vector(34.644651, 26.814236, 0), App.Vector(34.778322, 26.558697, 0), App.Vector(34.888409, 26.283716, 0), App.Vector(34.973001, 25.988394, 0), App.Vector(35.03412, 25.673564, 0), App.Vector(35.070429, 25.338996, 0), App.Vector(35.07472, 25.109467, 0), App.Vector(35.076923, 24.991587, 0)], [4, 1, 1, 1, 1, 1, 1, 1, 1, 1, 1, 1, 1, 1, 1, 1, 4], [0, 1.064641025, 2.083517118, 3.061799897, 4.009540929, 4.938075217, 5.861300345, 6.78508344, 7.723570974, 8.670267188, 9.622657076, 10.586935816, 11.576069104, 12.607749008, 13.683335114, 14.81022093, 16], False, 3, [1, 1, 1, 1, 1, 1, 1, 1, 1, 1, 1, 1, 1, 1, 1, 1, 1, 1, 1], False), False)
sketch14.addGeometry(Part.BSplineCurve([App.Vector(30.957933, 27.841346, 0), App.Vector(31.004197, 27.860323, 0), App.Vector(31.09771, 27.89868, 0), App.Vector(31.24304, 27.946551, 0), App.Vector(31.393884, 27.985445, 0), App.Vector(31.549152, 28.020211, 0), App.Vector(31.71035, 28.044183, 0), App.Vector(31.876176, 28.064283, 0), App.Vector(32.047538, 28.074818, 0), App.Vector(32.163449, 28.076214, 0), App.Vector(32.222356, 28.076923, 0)], [4, 1, 1, 1, 1, 1, 1, 1, 4], [0, 0.92659354, 1.872881803, 2.832850937, 3.813025581, 4.820167273, 5.851730198, 6.908245912, 8], False, 3, [1, 1, 1, 1, 1, 1, 1, 1, 1, 1, 1], False), False)
sketch14.addGeometry(Part.BSplineCurve([App.Vector(29.652644, 26.489183, 0), App.Vector(29.687706, 26.564033, 0), App.Vector(29.757417, 26.712854, 0), App.Vector(29.886881, 26.923149, 0), App.Vector(30.033621, 27.121475, 0), App.Vector(30.196428, 27.306791, 0), App.Vector(30.371147, 27.476308, 0), App.Vector(30.558602, 27.62139, 0), App.Vector(30.752132, 27.746937, 0), App.Vector(30.889776, 27.81008, 0), App.Vector(30.957933, 27.841346, 0)], [4, 1, 1, 1, 1, 1, 1, 1, 4], [0, 1.031372299, 2.050613973, 3.077158538, 4.108712802, 5.127684358, 6.111366908, 7.06480644, 8], False, 3, [1, 1, 1, 1, 1, 1, 1, 1, 1, 1, 1], False), False)
sketch14.addGeometry(Part.BSplineCurve([App.Vector(32.236779, 27.076923, 0), App.Vector(32.174593, 27.075317, 0), App.Vector(32.052947, 27.072175, 0), App.Vector(31.875121, 27.047269, 0), App.Vector(31.706354, 27.008669, 0), App.Vector(31.546975, 26.951009, 0), App.Vector(31.396731, 26.878192, 0), App.Vector(31.256179, 26.787885, 0), App.Vector(31.124211, 26.683041, 0), App.Vector(31.002898, 26.56126, 0), App.Vector(30.89248, 26.423775, 0), App.Vector(30.797691, 26.268763, 0), App.Vector(30.716863, 26.097916, 0), App.Vector(30.650549, 25.910728, 0), App.Vector(30.601389, 25.706686, 0), App.Vector(30.563606, 25.487159, 0), App.Vector(30.542388, 25.250819, 0), App.Vector(30.539799, 25.087781, 0), App.Vector(30.538462, 25.003606, 0)], [4, 1, 1, 1, 1, 1, 1, 1, 1, 1, 1, 1, 1, 1, 1, 1, 4], [0, 0.981996942, 1.920933313, 2.83127778, 3.712125466, 4.592427284, 5.463259035, 6.34592384, 7.249932058, 8.173122297, 9.125107726, 10.113123258, 11.154048744, 12.256187849, 13.424658091, 14.670364834, 16], False, 3, [1, 1, 1, 1, 1, 1, 1, 1, 1, 1, 1, 1, 1, 1, 1, 1, 1, 1, 1], False), False)
sketch14.addGeometry(Part.BSplineCurve([App.Vector(33.923077, 25.020433, 0), App.Vector(33.921784, 25.104215, 0), App.Vector(33.919281, 25.266468, 0), App.Vector(33.897477, 25.501444, 0), App.Vector(33.861768, 25.720053, 0), App.Vector(33.812127, 25.922238, 0), App.Vector(33.746524, 26.108033, 0), App.Vector(33.668169, 26.277945, 0), App.Vector(33.573426, 26.431086, 0), App.Vector(33.464768, 26.567377, 0), App.Vector(33.344532, 26.68734, 0), App.Vector(33.214763, 26.792362, 0), App.Vector(33.074722, 26.879747, 0), App.Vector(32.925775, 26.953269, 0), App.Vector(32.766374, 27.007815, 0), App.Vector(32.598136, 27.047601, 0), App.Vector(32.420587, 27.072101, 0), App.Vector(32.298957, 27.075292, 0), App.Vector(32.236779, 27.076923, 0)], [4, 1, 1, 1, 1, 1, 1, 1, 1, 1, 1, 1, 1, 1, 1, 1, 4], [0, 1.332337092, 2.580197383, 3.749299508, 4.852775005, 5.886662144, 6.878700295, 7.822989687, 8.743523536, 9.644687758, 10.519443927, 11.392806431, 12.264866173, 13.155606721, 14.065961015, 15.011303331, 16], False, 3, [1, 1, 1, 1, 1, 1, 1, 1, 1, 1, 1, 1, 1, 1, 1, 1, 1, 1, 1], False), False)
sketch14.addGeometry(Part.BSplineCurve([App.Vector(32.236779, 22.923077, 0), App.Vector(32.29695, 22.924761, 0), App.Vector(32.415377, 22.928077, 0), App.Vector(32.588691, 22.952154, 0), App.Vector(32.75388, 22.993284, 0), App.Vector(32.910271, 23.050942, 0), App.Vector(33.058579, 23.125128, 0), App.Vector(33.198673, 23.215552, 0), App.Vector(33.329746, 23.323508, 0), App.Vector(33.453114, 23.445908, 0), App.Vector(33.564184, 23.585947, 0), App.Vector(33.660246, 23.743241, 0), App.Vector(33.742336, 23.91649, 0), App.Vector(33.809377, 24.105759, 0), App.Vector(33.861134, 24.311404, 0), App.Vector(33.895742, 24.533534, 0), App.Vector(33.919709, 24.771514, 0), App.Vector(33.921932, 24.935833, 0), App.Vector(33.923077, 25.020433, 0)], [4, 1, 1, 1, 1, 1, 1, 1, 1, 1, 1, 1, 1, 1, 1, 1, 4], [0, 0.949153107, 1.868086493, 2.754172764, 3.630100905, 4.492260106, 5.365378617, 6.254840125, 7.166615376, 8.102436631, 9.067266169, 10.06813181, 11.121736829, 12.23011542, 13.408501285, 14.665770308, 16], False, 3, [1, 1, 1, 1, 1, 1, 1, 1, 1, 1, 1, 1, 1, 1, 1, 1, 1, 1, 1], False), False)
sketch14.addGeometry(Part.BSplineCurve([App.Vector(30.538462, 25.003606, 0), App.Vector(30.539614, 24.92061, 0), App.Vector(30.541846, 24.75989, 0), App.Vector(30.565622, 24.526609, 0), App.Vector(30.601702, 24.308524, 0), App.Vector(30.654765, 24.105882, 0), App.Vector(30.721799, 23.918538, 0), App.Vector(30.803929, 23.746333, 0), App.Vector(30.900817, 23.589013, 0), App.Vector(31.014967, 23.449897, 0), App.Vector(31.138469, 23.325693, 0), App.Vector(31.271779, 23.218226, 0), App.Vector(31.412411, 23.125728, 0), App.Vector(31.5628, 23.052701, 0), App.Vector(31.719816, 22.994747, 0), App.Vector(31.884677, 22.951775, 0), App.Vector(32.058205, 22.92818, 0), App.Vector(32.176616, 22.924796, 0), App.Vector(32.236779, 22.923077, 0)], [4, 1, 1, 1, 1, 1, 1, 1, 1, 1, 1, 1, 1, 1, 1, 1, 4], [0, 1.313550922, 2.543666373, 3.708465049, 4.810029406, 5.85539231, 6.85404609, 7.825601258, 8.772642133, 9.696587791, 10.59409323, 11.479048685, 12.35559886, 13.234601248, 14.125357077, 15.047515647, 16], False, 3, [1, 1, 1, 1, 1, 1, 1, 1, 1, 1, 1, 1, 1, 1, 1, 1, 1, 1, 1], False), False)
sketch14.addGeometry(Part.LineSegment(App.Vector(37.230769, 28, 0), App.Vector(36.076923, 28, 0)), False)
sketch14.addGeometry(Part.LineSegment(App.Vector(36.076923, 28, 0), App.Vector(36.076923, 24.8125, 0)), False)
sketch14.addGeometry(Part.BSplineCurve([App.Vector(36.194712, 23.296875, 0), App.Vector(36.185073, 23.342068, 0), App.Vector(36.164772, 23.43726, 0), App.Vector(36.141715, 23.588597, 0), App.Vector(36.12068, 23.755244, 0), App.Vector(36.106313, 23.937398, 0), App.Vector(36.092695, 24.134482, 0), App.Vector(36.082917, 24.346866, 0), App.Vector(36.078896, 24.574504, 0), App.Vector(36.077594, 24.73157, 0), App.Vector(36.076923, 24.8125, 0)], [4, 1, 1, 1, 1, 1, 1, 1, 4], [0, 0.728071598, 1.533551606, 2.411422299, 3.374601532, 4.412367648, 5.524718474, 6.72457895, 8], False, 3, [1, 1, 1, 1, 1, 1, 1, 1, 1, 1, 1], False), False)
sketch14.addGeometry(Part.BSplineCurve([App.Vector(38.532452, 21.923077, 0), App.Vector(38.463136, 21.923963, 0), App.Vector(38.328861, 21.925679, 0), App.Vector(38.13395, 21.933336, 0), App.Vector(37.952342, 21.94914, 0), App.Vector(37.783468, 21.9705, 0), App.Vector(37.627396, 21.997959, 0), App.Vector(37.483731, 22.030786, 0), App.Vector(37.353622, 22.072275, 0), App.Vector(37.198652, 22.131531, 0), App.Vector(37.025911, 22.222172, 0), App.Vector(36.837876, 22.343088, 0), App.Vector(36.672813, 22.479563, 0), App.Vector(36.532173, 22.630263, 0), App.Vector(36.414604, 22.789893, 0), App.Vector(36.319041, 22.954998, 0), App.Vector(36.24246, 23.122827, 0), App.Vector(36.21046, 23.239471, 0), App.Vector(36.194712, 23.296875, 0)], [4, 1, 1, 1, 1, 1, 1, 1, 1, 1, 1, 1, 1, 1, 1, 1, 4], [0, 1.128613534, 2.186292659, 3.174878439, 4.095586888, 4.95671962, 5.754129884, 6.492676435, 7.178284149, 8.453103036, 9.659838108, 10.813193309, 11.929983019, 13.007587775, 14.033493319, 15.032227051, 16], False, 3, [1, 1, 1, 1, 1, 1, 1, 1, 1, 1, 1, 1, 1, 1, 1, 1, 1, 1, 1], False), False)
sketch14.addGeometry(Part.BSplineCurve([App.Vector(40.846154, 24.861779, 0), App.Vector(40.846006, 24.77524, 0), App.Vector(40.845722, 24.608957, 0), App.Vector(40.841285, 24.369717, 0), App.Vector(40.831855, 24.150225, 0), App.Vector(40.823958, 23.950103, 0), App.Vector(40.808726, 23.769864, 0), App.Vector(40.792778, 23.609393, 0), App.Vector(40.772233, 23.468721, 0), App.Vector(40.742936, 23.308826, 0), App.Vector(40.6937, 23.129434, 0), App.Vector(40.614349, 22.931273, 0), App.Vector(40.512936, 22.750989, 0), App.Vector(40.389865, 22.587889, 0), App.Vector(40.245844, 22.441327, 0), App.Vector(40.078719, 22.311878, 0), App.Vector(39.890207, 22.197969, 0), App.Vector(39.717457, 22.115947, 0), App.Vector(39.566842, 22.060716, 0), App.Vector(39.444168, 22.023338, 0), App.Vector(39.312879, 21.99221, 0), App.Vector(39.173128, 21.967507, 0), App.Vector(39.024857, 21.946679, 0), App.Vector(38.86801, 21.932769, 0), App.Vector(38.702825, 21.924089, 0), App.Vector(38.590156, 21.92342, 0), App.Vector(38.532452, 21.923077, 0)], [4, 1, 1, 1, 1, 1, 1, 1, 1, 1, 1, 1, 1, 1, 1, 1, 1, 1, 1, 1, 1, 1, 1, 1, 4], [0, 1.415574045, 2.719986624, 3.913607924, 5.00929969, 5.995467356, 6.871900228, 7.64671288, 8.320227872, 9.530145585, 10.682614022, 11.803571353, 12.90325401, 14.015460715, 15.154679255, 16.351678057, 17.612271512, 18.275764165, 18.974412946, 19.708786676, 20.481351116, 21.295095879, 22.157200529, 23.056203067, 24], False, 3, [1, 1, 1, 1, 1, 1, 1, 1, 1, 1, 1, 1, 1, 1, 1, 1, 1, 1, 1, 1, 1, 1, 1, 1, 1, 1, 1], False), False)
sketch14.addGeometry(Part.LineSegment(App.Vector(40.846154, 24.861779, 0), App.Vector(40.846154, 28, 0)), False)
sketch14.addGeometry(Part.LineSegment(App.Vector(40.846154, 28, 0), App.Vector(39.692308, 28, 0)), False)
sketch14.addGeometry(Part.LineSegment(App.Vector(39.692308, 28, 0), App.Vector(39.692308, 24.674279, 0)), False)
sketch14.addGeometry(Part.BSplineCurve([App.Vector(38.497596, 22.923077, 0), App.Vector(38.540879, 22.923862, 0), App.Vector(38.625149, 22.92539, 0), App.Vector(38.747271, 22.934492, 0), App.Vector(38.861209, 22.951665, 0), App.Vector(38.966893, 22.974182, 0), App.Vector(39.064881, 23.002639, 0), App.Vector(39.154392, 23.038669, 0), App.Vector(39.235284, 23.082028, 0), App.Vector(39.330331, 23.147381, 0), App.Vector(39.432601, 23.239573, 0), App.Vector(39.531023, 23.36492, 0), App.Vector(39.601463, 23.503288, 0), App.Vector(39.634502, 23.629629, 0), App.Vector(39.651484, 23.739706, 0), App.Vector(39.661829, 23.836028, 0), App.Vector(39.671291, 23.94503, 0), App.Vector(39.679883, 24.066415, 0), App.Vector(39.685759, 24.200273, 0), App.Vector(39.688937, 24.346943, 0), App.Vector(39.691438, 24.506402, 0), App.Vector(39.692011, 24.616986, 0), App.Vector(39.692308, 24.674279, 0)], [4, 1, 1, 1, 1, 1, 1, 1, 1, 1, 1, 1, 1, 1, 1, 1, 1, 1, 1, 1, 4], [0, 1.036876239, 2.018776863, 2.930845756, 3.794842666, 4.605604932, 5.371924355, 6.101864688, 6.799283669, 8.1310906, 9.382718023, 10.597336334, 11.822035891, 12.492591141, 13.265194674, 14.141890321, 15.11351293, 16.179860579, 17.351049011, 18.627594861, 20], False, 3, [1, 1, 1, 1, 1, 1, 1, 1, 1, 1, 1, 1, 1, 1, 1, 1, 1, 1, 1, 1, 1, 1, 1], False), False)
sketch14.addGeometry(Part.BSplineCurve([App.Vector(37.277644, 23.739183, 0), App.Vector(37.293404, 23.679863, 0), App.Vector(37.324437, 23.563055, 0), App.Vector(37.409976, 23.403381, 0), App.Vector(37.522972, 23.262638, 0), App.Vector(37.638232, 23.162266, 0), App.Vector(37.742493, 23.09123, 0), App.Vector(37.831055, 23.047997, 0), App.Vector(37.925018, 23.008587, 0), App.Vector(38.026369, 22.978348, 0), App.Vector(38.134021, 22.951888, 0), App.Vector(38.249273, 22.936588, 0), App.Vector(38.371154, 22.924846, 0), App.Vector(38.454695, 22.923677, 0), App.Vector(38.497596, 22.923077, 0)], [4, 1, 1, 1, 1, 1, 1, 1, 1, 1, 1, 1, 4], [0, 1.376921055, 2.711331395, 4.038631339, 5.418057255, 6.132954575, 6.870556231, 7.630397752, 8.422890386, 9.247036838, 10.121396817, 11.035274583, 12], False, 3, [1, 1, 1, 1, 1, 1, 1, 1, 1, 1, 1, 1, 1, 1, 1], False), False)
sketch14.addGeometry(Part.BSplineCurve([App.Vector(37.230769, 24.74399, 0), App.Vector(37.23121, 24.682292, 0), App.Vector(37.232051, 24.564503, 0), App.Vector(37.23263, 24.39622, 0), App.Vector(37.235833, 24.245127, 0), App.Vector(37.24278, 24.110982, 0), App.Vector(37.247548, 23.993853, 0), App.Vector(37.256402, 23.893718, 0), App.Vector(37.265234, 23.810616, 0), App.Vector(37.273822, 23.761187, 0), App.Vector(37.277644, 23.739183, 0)], [4, 1, 1, 1, 1, 1, 1, 1, 4], [0, 1.470600056, 2.807515117, 4.011048972, 5.072079398, 6.00911328, 6.804506435, 7.467811572, 8], False, 3, [1, 1, 1, 1, 1, 1, 1, 1, 1, 1, 1], False), False)
sketch14.addGeometry(Part.LineSegment(App.Vector(37.230769, 24.74399, 0), App.Vector(37.230769, 28, 0)), False)
add_polygon(sketch14, [(43.461538, 27), (43.461538, 22), (44.615385, 22), (44.615385, 27), (46.384615, 27), (46.384615, 28), (41.692308, 28), (41.692308, 27)])
sketch14.addConstraint([
    Sketcher.Constraint("Block", 0),
    Sketcher.Constraint("Block", 1),
    Sketcher.Constraint("Block", 2),
    Sketcher.Constraint("Block", 3),
    Sketcher.Constraint("Block", 4),
    Sketcher.Constraint("Block", 5),
    Sketcher.Constraint("Block", 6),
    Sketcher.Constraint("Block", 7),
    Sketcher.Constraint("Block", 8),
    Sketcher.Constraint("Block", 9),
    Sketcher.Constraint("Block", 12),
    Sketcher.Constraint("Block", 13),
    Sketcher.Constraint("Block", 14),
    Sketcher.Constraint("Block", 18),
    Sketcher.Constraint("Block", 19),
    Sketcher.Constraint("Block", 20),
    Sketcher.Constraint("Coincident", 10, 2, 11, 1),
    Sketcher.Constraint("Coincident", 11, 2, 12, 2),
    Sketcher.Constraint("Coincident", 14, 1, 15, 1),
    Sketcher.Constraint("Coincident", 15, 2, 16, 1),
    Sketcher.Constraint("Coincident", 16, 2, 17, 1),
    Sketcher.Constraint("Coincident", 17, 2, 18, 2),
    Sketcher.Constraint("Coincident", 20, 1, 21, 1),
    Sketcher.Constraint("Coincident", 21, 2, 10, 1),
    Sketcher.Constraint("Horizontal", 10),
    Sketcher.Constraint("Vertical", 11),
    Sketcher.Constraint("Vertical", 15),
    Sketcher.Constraint("Horizontal", 16),
    Sketcher.Constraint("Vertical", 17),
    Sketcher.Constraint("Vertical", 21),
    Sketcher.Constraint("Vertical", 22),
    Sketcher.Constraint("Horizontal", 23),
    Sketcher.Constraint("Vertical", 24),
    Sketcher.Constraint("Horizontal", 25),
    Sketcher.Constraint("Vertical", 26),
    Sketcher.Constraint("Horizontal", 27),
    Sketcher.Constraint("Vertical", 28),
    Sketcher.Constraint("Horizontal", 29),
    Sketcher.Constraint("Horizontal", 10, 2, 15, 2),
    Sketcher.Constraint("Horizontal", 21, 2, 26, 2),
    Sketcher.Constraint("Horizontal", 25, 2, 28, 2),
    Sketcher.Constraint("Equal", 16, 23),
    Sketcher.Constraint("Equal", 25, 29),
    Sketcher.Constraint("DistanceY", 22, 2, 22, 1, 5.0),
    Sketcher.Constraint("DistanceY", 26, 1, 26, 2, 1.0),
    Sketcher.Constraint("DistanceY", -1, 1, 10, 2, 28.0),
    Sketcher.Constraint("DistanceX", 16, 2, 27, 2, 2.0),
    Sketcher.Constraint("DistanceX", 25, 1, 25, 2, 1.769231),
])
pad7 = body.newObject("PartDesign::Pad", "Pad006")
pad7.Profile = sketch14
pad7.Length = 0.6

doc.recompute()
